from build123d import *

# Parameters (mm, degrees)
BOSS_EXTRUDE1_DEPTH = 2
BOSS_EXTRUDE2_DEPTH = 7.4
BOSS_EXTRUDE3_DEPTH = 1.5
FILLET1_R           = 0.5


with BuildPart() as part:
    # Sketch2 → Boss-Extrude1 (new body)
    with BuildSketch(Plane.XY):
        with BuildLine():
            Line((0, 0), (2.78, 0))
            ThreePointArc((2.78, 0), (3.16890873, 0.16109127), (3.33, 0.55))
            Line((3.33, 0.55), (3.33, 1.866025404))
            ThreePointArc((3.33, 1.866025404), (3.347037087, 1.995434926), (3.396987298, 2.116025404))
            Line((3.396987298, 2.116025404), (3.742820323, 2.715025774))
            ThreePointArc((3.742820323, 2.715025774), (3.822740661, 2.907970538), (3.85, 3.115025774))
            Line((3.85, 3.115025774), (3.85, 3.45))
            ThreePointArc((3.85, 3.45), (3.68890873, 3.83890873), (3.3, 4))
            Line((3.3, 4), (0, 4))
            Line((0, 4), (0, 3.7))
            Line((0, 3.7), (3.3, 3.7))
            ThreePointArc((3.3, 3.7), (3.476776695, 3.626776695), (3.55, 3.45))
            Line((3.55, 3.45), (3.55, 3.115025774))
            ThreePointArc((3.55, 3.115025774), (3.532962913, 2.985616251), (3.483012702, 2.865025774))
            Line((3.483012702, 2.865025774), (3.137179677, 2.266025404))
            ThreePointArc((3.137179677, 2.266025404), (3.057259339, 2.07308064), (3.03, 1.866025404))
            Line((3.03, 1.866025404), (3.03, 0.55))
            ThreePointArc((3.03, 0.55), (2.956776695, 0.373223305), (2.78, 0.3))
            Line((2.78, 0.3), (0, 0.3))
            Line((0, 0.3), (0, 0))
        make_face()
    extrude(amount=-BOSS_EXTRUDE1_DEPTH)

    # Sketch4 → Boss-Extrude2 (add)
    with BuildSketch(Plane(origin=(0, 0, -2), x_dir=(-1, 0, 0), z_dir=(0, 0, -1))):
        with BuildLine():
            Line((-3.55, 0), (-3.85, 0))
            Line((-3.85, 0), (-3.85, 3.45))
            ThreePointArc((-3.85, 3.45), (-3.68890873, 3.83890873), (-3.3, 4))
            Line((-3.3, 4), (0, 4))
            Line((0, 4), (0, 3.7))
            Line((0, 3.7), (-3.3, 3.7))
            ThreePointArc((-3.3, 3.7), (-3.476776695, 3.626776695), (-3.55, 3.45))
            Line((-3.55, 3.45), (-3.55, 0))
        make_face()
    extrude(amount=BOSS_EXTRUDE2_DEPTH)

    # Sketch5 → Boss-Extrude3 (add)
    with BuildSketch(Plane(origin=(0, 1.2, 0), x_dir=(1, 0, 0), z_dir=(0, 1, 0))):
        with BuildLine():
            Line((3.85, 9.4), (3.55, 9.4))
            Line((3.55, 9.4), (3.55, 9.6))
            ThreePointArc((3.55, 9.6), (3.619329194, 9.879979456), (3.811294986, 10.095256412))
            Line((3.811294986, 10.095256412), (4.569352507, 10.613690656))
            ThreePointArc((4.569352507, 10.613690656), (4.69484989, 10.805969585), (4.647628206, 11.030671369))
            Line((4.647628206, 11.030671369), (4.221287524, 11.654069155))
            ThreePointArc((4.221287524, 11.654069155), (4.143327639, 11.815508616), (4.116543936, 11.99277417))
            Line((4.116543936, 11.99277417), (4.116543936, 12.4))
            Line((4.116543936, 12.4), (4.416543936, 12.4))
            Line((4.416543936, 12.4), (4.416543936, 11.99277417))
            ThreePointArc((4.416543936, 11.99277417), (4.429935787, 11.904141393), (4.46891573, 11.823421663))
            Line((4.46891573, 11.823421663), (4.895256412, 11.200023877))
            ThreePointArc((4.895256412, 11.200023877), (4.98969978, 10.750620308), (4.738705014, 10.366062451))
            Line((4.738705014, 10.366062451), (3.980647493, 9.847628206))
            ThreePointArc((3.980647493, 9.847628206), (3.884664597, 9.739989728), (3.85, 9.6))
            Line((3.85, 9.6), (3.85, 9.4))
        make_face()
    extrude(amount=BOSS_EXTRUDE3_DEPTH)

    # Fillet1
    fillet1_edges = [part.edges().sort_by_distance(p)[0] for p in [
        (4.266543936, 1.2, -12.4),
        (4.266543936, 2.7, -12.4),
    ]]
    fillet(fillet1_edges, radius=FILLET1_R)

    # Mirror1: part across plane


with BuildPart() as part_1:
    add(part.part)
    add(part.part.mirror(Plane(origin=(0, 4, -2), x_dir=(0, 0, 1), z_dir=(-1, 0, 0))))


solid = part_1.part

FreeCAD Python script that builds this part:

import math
import FreeCAD as App
import Part
import Sketcher

V = App.Vector
Q = App.Units.Quantity


def edges_at(feature, points):
    """Names of the edges that pass closest to the given points."""
    edges = feature.Shape.Edges
    near = lambda p: min(range(len(edges)), key=lambda i: edges[i].distToShape(Part.Vertex(*p))[0])
    return sorted({f"Edge{near(p) + 1}" for p in points})

doc = App.newDocument("Part")
body = doc.addObject("PartDesign::Body", "Body")

# Sketch on XY plane
sketch1 = doc.addObject("Sketcher::SketchObject", "Sketch")
body.addObject(sketch1)
sketch1.AttachmentSupport = (doc.XY_Plane, [""])
sketch1.MapMode = "FlatFace"
sketch1.addGeometry([
    Part.LineSegment(V(0, 0, 0), V(2.78, 0, 0)),  # 0
    Part.ArcOfCircle(Part.Circle(V(2.78, 0.55, 0), V(0, 0, 1), 0.55), math.radians(-90), math.radians(0)),  # 1
    Part.LineSegment(V(3.33, 0.55, 0), V(3.33, 1.866025, 0)),  # 2
    Part.ArcOfCircle(Part.Circle(V(3.83, 1.866025, 0), V(0, 0, 1), 0.5), math.radians(150), math.radians(180)),  # 3
    Part.LineSegment(V(3.396987, 2.116025, 0), V(3.74282, 2.715026, 0)),  # 4
    Part.ArcOfCircle(Part.Circle(V(3.05, 3.115026, 0), V(0, 0, 1), 0.8), math.radians(-30), math.radians(0)),  # 5
    Part.LineSegment(V(3.85, 3.115026, 0), V(3.85, 3.45, 0)),  # 6
    Part.ArcOfCircle(Part.Circle(V(3.3, 3.45, 0), V(0, 0, 1), 0.55), math.radians(0), math.radians(90)),  # 7
    Part.LineSegment(V(3.3, 4, 0), V(0, 4, 0)),  # 8
    Part.LineSegment(V(0, 4, 0), V(0, 3.7, 0)),  # 9
    Part.LineSegment(V(0, 3.7, 0), V(3.3, 3.7, 0)),  # 10
    Part.ArcOfCircle(Part.Circle(V(3.3, 3.45, 0), V(0, 0, 1), 0.25), math.radians(0), math.radians(90)),  # 11
    Part.LineSegment(V(3.55, 3.45, 0), V(3.55, 3.115026, 0)),  # 12
    Part.ArcOfCircle(Part.Circle(V(3.05, 3.115026, 0), V(0, 0, 1), 0.5), math.radians(-30), math.radians(0)),  # 13
    Part.LineSegment(V(3.483013, 2.865026, 0), V(3.13718, 2.266025, 0)),  # 14
    Part.ArcOfCircle(Part.Circle(V(3.83, 1.866025, 0), V(0, 0, 1), 0.8), math.radians(150), math.radians(180)),  # 15
    Part.LineSegment(V(3.03, 1.866025, 0), V(3.03, 0.55, 0)),  # 16
    Part.ArcOfCircle(Part.Circle(V(2.78, 0.55, 0), V(0, 0, 1), 0.25), math.radians(-90), math.radians(0)),  # 17
    Part.LineSegment(V(2.78, 0.3, 0), V(0, 0.3, 0)),  # 18
    Part.LineSegment(V(0, 0.3, 0), V(0, 0, 0)),  # 19
], False)
sketch1.addConstraint([
    Sketcher.Constraint("Tangent", 0, 2, 1, 1),
    Sketcher.Constraint("Tangent", 1, 2, 2, 1),
    Sketcher.Constraint("Tangent", 2, 2, 3, 2),
    Sketcher.Constraint("Tangent", 3, 1, 4, 1),
    Sketcher.Constraint("Tangent", 4, 2, 5, 1),
    Sketcher.Constraint("Tangent", 5, 2, 6, 1),
    Sketcher.Constraint("Tangent", 6, 2, 7, 1),
    Sketcher.Constraint("Tangent", 7, 2, 8, 1),
    Sketcher.Constraint("Coincident", 8, 2, 9, 1),
    Sketcher.Constraint("Coincident", 9, 2, 10, 1),
    Sketcher.Constraint("Tangent", 10, 2, 11, 2),
    Sketcher.Constraint("Tangent", 11, 1, 12, 1),
    Sketcher.Constraint("Tangent", 12, 2, 13, 2),
    Sketcher.Constraint("Tangent", 13, 1, 14, 1),
    Sketcher.Constraint("Tangent", 14, 2, 15, 1),
    Sketcher.Constraint("Tangent", 15, 2, 16, 1),
    Sketcher.Constraint("Tangent", 16, 2, 17, 2),
    Sketcher.Constraint("Tangent", 17, 1, 18, 1),
    Sketcher.Constraint("Coincident", 18, 2, 19, 1),
    Sketcher.Constraint("Coincident", 19, 2, 0, 1),
    Sketcher.Constraint("Horizontal", 0),
    Sketcher.Constraint("Vertical", 2),
    Sketcher.Constraint("Vertical", 6),
    Sketcher.Constraint("Horizontal", 8),
    Sketcher.Constraint("Vertical", 9),
    Sketcher.Constraint("Horizontal", 10),
    Sketcher.Constraint("Vertical", 12),
    Sketcher.Constraint("Vertical", 16),
    Sketcher.Constraint("Horizontal", 18),
    Sketcher.Constraint("Vertical", 19),
    Sketcher.Constraint("Coincident", 19, 2, -1, 1),
    Sketcher.Constraint("Coincident", 11, 3, 7, 3),
    Sketcher.Constraint("Coincident", 13, 3, 5, 3),
    Sketcher.Constraint("Coincident", 15, 3, 3, 3),
    Sketcher.Constraint("Coincident", 17, 3, 1, 3),
    Sketcher.Constraint("Equal", 1, 7),
    Sketcher.Constraint("Equal", 3, 13),
    Sketcher.Constraint("Equal", 5, 15),
    Sketcher.Constraint("PointOnObject", 8, 2, -2),
    Sketcher.Constraint("Radius", 3, 0.5),
    Sketcher.Constraint("Radius", 5, 0.8),
    Sketcher.Constraint("Angle", 4, Q("60 deg")),
    Sketcher.Constraint("Radius", 1, 0.55),
    Sketcher.Constraint("DistanceX", 8, 2, 8, 1, 3.3),
    Sketcher.Constraint("DistanceY", -1, 1, 7, 2, 4.0),
    Sketcher.Constraint("DistanceX", 0, 1, 0, 2, 2.78),
    Sketcher.Constraint("DistanceY", 2, 1, 2, 2, 1.316025),
])
pad1 = doc.addObject("PartDesign::Pad", "Pad")
body.addObject(pad1)
pad1.Profile = sketch1
pad1.Length = 2
pad1.Reversed = True

# Sketch on XY plane
sketch2 = doc.addObject("Sketcher::SketchObject", "Sketch001")
body.addObject(sketch2)
sketch2.AttachmentSupport = (doc.XY_Plane, [""])
sketch2.MapMode = "FlatFace"
sketch2.AttachmentOffset = App.Placement(V(0, 0, -2), App.Rotation())
sketch2.addGeometry([
    Part.LineSegment(V(3.85, 0, 0), V(3.55, 0, 0)),  # 0
    Part.LineSegment(V(3.55, 0, 0), V(3.55, 3.45, 0)),  # 1
    Part.ArcOfCircle(Part.Circle(V(3.3, 3.45, 0), V(0, 0, 1), 0.25), math.radians(0), math.radians(90)),  # 2
    Part.LineSegment(V(3.3, 3.7, 0), V(0, 3.7, 0)),  # 3
    Part.LineSegment(V(0, 3.7, 0), V(0, 4, 0)),  # 4
    Part.LineSegment(V(0, 4, 0), V(3.3, 4, 0)),  # 5
    Part.ArcOfCircle(Part.Circle(V(3.3, 3.45, 0), V(0, 0, 1), 0.55), math.radians(0), math.radians(90)),  # 6
    Part.LineSegment(V(3.85, 3.45, 0), V(3.85, 0, 0)),  # 7
], False)
sketch2.addConstraint([
    Sketcher.Constraint("Coincident", 0, 2, 1, 1),
    Sketcher.Constraint("Tangent", 1, 2, 2, 1),
    Sketcher.Constraint("Tangent", 2, 2, 3, 1),
    Sketcher.Constraint("Coincident", 3, 2, 4, 1),
    Sketcher.Constraint("Coincident", 4, 2, 5, 1),
    Sketcher.Constraint("Tangent", 5, 2, 6, 2),
    Sketcher.Constraint("Tangent", 6, 1, 7, 1),
    Sketcher.Constraint("Coincident", 7, 2, 0, 1),
    Sketcher.Constraint("Horizontal", 0),
    Sketcher.Constraint("Vertical", 1),
    Sketcher.Constraint("Horizontal", 3),
    Sketcher.Constraint("Vertical", 4),
    Sketcher.Constraint("Horizontal", 5),
    Sketcher.Constraint("Vertical", 7),
    Sketcher.Constraint("Coincident", 6, 3, 2, 3),
    Sketcher.Constraint("PointOnObject", 0, 2, -1),
    Sketcher.Constraint("PointOnObject", 3, 2, -2),
    Sketcher.Constraint("Radius", 2, 0.25),
    Sketcher.Constraint("Radius", 6, 0.55),
    Sketcher.Constraint("DistanceX", 3, 2, 3, 1, 3.3),
    Sketcher.Constraint("DistanceY", -1, 1, 4, 2, 4.0),
])
pad2 = doc.addObject("PartDesign::Pad", "Pad001")
body.addObject(pad2)
pad2.Profile = sketch2
pad2.Length = 7.4
pad2.Reversed = True

# Sketch on XZ plane
sketch3 = doc.addObject("Sketcher::SketchObject", "Sketch002")
body.addObject(sketch3)
sketch3.AttachmentSupport = (doc.XZ_Plane, [""])
sketch3.MapMode = "FlatFace"
sketch3.AttachmentOffset = App.Placement(V(0, 0, -1.2), App.Rotation())
sketch3.addGeometry([
    Part.LineSegment(V(3.55, -9.4, 0), V(3.85, -9.4, 0)),  # 0
    Part.LineSegment(V(3.85, -9.4, 0), V(3.85, -9.6, 0)),  # 1
    Part.ArcOfCircle(Part.Circle(V(4.15, -9.6, 0), V(0, 0, 1), 0.3), math.radians(180), math.radians(235.631842)),  # 2
    Part.LineSegment(V(3.980647, -9.847628, 0), V(4.738705, -10.366062, 0)),  # 3
    Part.ArcOfCircle(Part.Circle(V(4.4, -10.861319, 0), V(0, 0, 1), 0.6), math.radians(-34.368158), math.radians(55.631842)),  # 4
    Part.LineSegment(V(4.895256, -11.200024, 0), V(4.468916, -11.823422, 0)),  # 5
    Part.ArcOfCircle(Part.Circle(V(4.716544, -11.992774, 0), V(0, 0, 1), 0.3), math.radians(145.631842), math.radians(180)),  # 6
    Part.LineSegment(V(4.416544, -11.992774, 0), V(4.416544, -12.4, 0)),  # 7
    Part.LineSegment(V(4.416544, -12.4, 0), V(4.116544, -12.4, 0)),  # 8
    Part.LineSegment(V(4.116544, -12.4, 0), V(4.116544, -11.992774, 0)),  # 9
    Part.ArcOfCircle(Part.Circle(V(4.716544, -11.992774, 0), V(0, 0, 1), 0.6), math.radians(145.631843), math.radians(180)),  # 10
    Part.LineSegment(V(4.221288, -11.654069, 0), V(4.647628, -11.030671, 0)),  # 11
    Part.ArcOfCircle(Part.Circle(V(4.4, -10.861319, 0), V(0, 0, 1), 0.3), math.radians(-34.368158), math.radians(55.631842)),  # 12
    Part.LineSegment(V(4.569353, -10.613691, 0), V(3.811295, -10.095256, 0)),  # 13
    Part.ArcOfCircle(Part.Circle(V(4.15, -9.6, 0), V(0, 0, 1), 0.6), math.radians(180), math.radians(235.631842)),  # 14
    Part.LineSegment(V(3.55, -9.6, 0), V(3.55, -9.4, 0)),  # 15
], False)
sketch3.addConstraint([
    Sketcher.Constraint("Coincident", 0, 2, 1, 1),
    Sketcher.Constraint("Tangent", 1, 2, 2, 1),
    Sketcher.Constraint("Tangent", 2, 2, 3, 1),
    Sketcher.Constraint("Tangent", 3, 2, 4, 2),
    Sketcher.Constraint("Tangent", 4, 1, 5, 1),
    Sketcher.Constraint("Tangent", 5, 2, 6, 1),
    Sketcher.Constraint("Tangent", 6, 2, 7, 1),
    Sketcher.Constraint("Coincident", 7, 2, 8, 1),
    Sketcher.Constraint("Coincident", 8, 2, 9, 1),
    Sketcher.Constraint("Tangent", 9, 2, 10, 2),
    Sketcher.Constraint("Tangent", 10, 1, 11, 1),
    Sketcher.Constraint("Tangent", 11, 2, 12, 1),
    Sketcher.Constraint("Tangent", 12, 2, 13, 1),
    Sketcher.Constraint("Tangent", 13, 2, 14, 2),
    Sketcher.Constraint("Tangent", 14, 1, 15, 1),
    Sketcher.Constraint("Coincident", 15, 2, 0, 1),
    Sketcher.Constraint("Horizontal", 0),
    Sketcher.Constraint("Vertical", 1),
    Sketcher.Constraint("Vertical", 7),
    Sketcher.Constraint("Horizontal", 8),
    Sketcher.Constraint("Vertical", 9),
    Sketcher.Constraint("Vertical", 15),
    Sketcher.Constraint("Coincident", 10, 3, 6, 3),
    Sketcher.Constraint("Coincident", 12, 3, 4, 3),
    Sketcher.Constraint("Coincident", 14, 3, 2, 3),
    Sketcher.Constraint("Equal", 2, 6),
    Sketcher.Constraint("Equal", 4, 10),
    Sketcher.Constraint("Equal", 6, 12),
    Sketcher.Constraint("Equal", 10, 14),
    Sketcher.Constraint("Perpendicular", 3, 5),
    Sketcher.Constraint("Radius", 2, 0.3),
    Sketcher.Constraint("Radius", 4, 0.6),
    Sketcher.Constraint("DistanceY", 1, 2, 1, 1, 0.2),
    Sketcher.Constraint("DistanceY", 2, 3, -1, 1, 9.6),
    Sketcher.Constraint("DistanceX", -1, 1, 4, 3, 4.4),
    Sketcher.Constraint("DistanceY", 7, 2, -1, 1, 12.4),
    Sketcher.Constraint("DistanceX", -1, 1, 2, 3, 4.15),
    Sketcher.Constraint("Distance", 3, 0.918382),
    Sketcher.Constraint("DistanceY", 7, 2, 7, 1, 0.407226),
])
pad3 = doc.addObject("PartDesign::Pad", "Pad002")
body.addObject(pad3)
pad3.Profile = sketch3
pad3.Length = 1.5
pad3.Reversed = True
doc.recompute()

fillet = doc.addObject("PartDesign::Fillet", "Fillet")
body.addObject(fillet)
fillet.Base = (pad3, edges_at(pad3, [(4.267, 1.2, -12.4), (4.267, 2.7, -12.4)]))
fillet.Radius = 0.5
body2 = doc.addObject("PartDesign::Body", "Body001")
doc.recompute()

body2.BaseFeature = body
doc.recompute()

mirroring = doc.addObject("Part::Mirroring", "Mirroring")
mirroring.Source = body
mirroring.Base = V(0, 4, -2)
mirroring.Normal = V(-1, 0, 0)
body3 = doc.addObject("PartDesign::Body", "Body002")
body3.BaseFeature = mirroring
boolean = doc.addObject("PartDesign::Boolean", "Boolean")
body2.addObject(boolean)
boolean.Type = "Fuse"
boolean.addObjects([body3])
doc.recompute()
mirroring.Visibility = False

doc.recompute()
